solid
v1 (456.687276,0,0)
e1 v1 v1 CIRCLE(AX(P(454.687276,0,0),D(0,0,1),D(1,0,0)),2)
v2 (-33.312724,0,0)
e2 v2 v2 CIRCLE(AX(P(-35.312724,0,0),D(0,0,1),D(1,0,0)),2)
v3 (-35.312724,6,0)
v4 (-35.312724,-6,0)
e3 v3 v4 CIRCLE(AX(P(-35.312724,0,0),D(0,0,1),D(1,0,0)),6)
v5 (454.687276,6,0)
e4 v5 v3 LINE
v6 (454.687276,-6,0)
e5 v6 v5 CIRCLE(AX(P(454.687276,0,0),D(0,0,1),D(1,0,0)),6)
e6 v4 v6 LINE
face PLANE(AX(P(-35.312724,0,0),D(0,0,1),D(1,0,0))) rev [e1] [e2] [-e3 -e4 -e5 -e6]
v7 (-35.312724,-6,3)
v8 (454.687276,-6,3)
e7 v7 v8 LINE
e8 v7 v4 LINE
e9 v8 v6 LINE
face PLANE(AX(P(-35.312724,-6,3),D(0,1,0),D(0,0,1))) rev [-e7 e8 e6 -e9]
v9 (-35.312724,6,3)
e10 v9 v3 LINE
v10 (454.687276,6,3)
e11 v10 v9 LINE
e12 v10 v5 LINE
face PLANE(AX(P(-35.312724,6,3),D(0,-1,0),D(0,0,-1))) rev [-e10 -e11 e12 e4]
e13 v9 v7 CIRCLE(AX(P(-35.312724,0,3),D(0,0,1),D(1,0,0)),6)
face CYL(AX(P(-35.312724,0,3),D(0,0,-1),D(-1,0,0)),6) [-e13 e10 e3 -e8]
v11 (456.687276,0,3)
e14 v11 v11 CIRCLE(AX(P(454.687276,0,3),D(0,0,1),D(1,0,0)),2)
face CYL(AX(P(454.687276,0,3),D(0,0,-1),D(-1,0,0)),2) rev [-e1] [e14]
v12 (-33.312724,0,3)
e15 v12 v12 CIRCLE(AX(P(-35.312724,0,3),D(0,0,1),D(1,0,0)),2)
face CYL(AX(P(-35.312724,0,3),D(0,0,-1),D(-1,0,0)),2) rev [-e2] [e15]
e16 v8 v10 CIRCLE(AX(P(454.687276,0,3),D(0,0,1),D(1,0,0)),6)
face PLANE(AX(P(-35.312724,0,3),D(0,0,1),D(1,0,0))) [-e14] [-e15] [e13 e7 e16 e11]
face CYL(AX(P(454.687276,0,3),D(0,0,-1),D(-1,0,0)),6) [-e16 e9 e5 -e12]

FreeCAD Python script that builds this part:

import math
import FreeCAD as App
import Part
import Sketcher
from FreeCAD import Vector
Q = App.Units.Quantity

doc = App.newDocument("Part")
params = doc.addObject("Spreadsheet::Sheet", "Params")
for row, (alias, value) in enumerate([
    ("sketch1_diameter", "4 mm"),
    ("sketch1_radius", "6 mm"),
    ("sketch1_width", "490 mm"),
    ("pad1_length", "3 mm"),
], start=1):
    params.set(f"A{row}", alias)
    params.set(f"B{row}", "=" + value)
    params.setAlias(f"B{row}", alias)

body = doc.addObject("PartDesign::Body", "Body")

# Sketch on XY plane
sketch1 = doc.addObject("Sketcher::SketchObject", "Sketch")
body.addObject(sketch1)
sketch1.AttachmentSupport = (doc.XY_Plane, [""])
sketch1.MapMode = "FlatFace"
sketch1.addGeometry([
    Part.LineSegment(Vector(454.7, 6, 0), Vector(-35.3, 6, 0)),  # 0
    Part.ArcOfCircle(Part.Circle(Vector(-35.3, 0, 0), Vector(0, 0, 1), 6), math.radians(90), math.radians(270)),  # 1
    Part.LineSegment(Vector(-35.3, -6, 0), Vector(454.7, -6, 0)),  # 2
    Part.ArcOfCircle(Part.Circle(Vector(454.7, 0, 0), Vector(0, 0, 1), 6), math.radians(-90), math.radians(90)),  # 3
    Part.Circle(Vector(454.7, 0, 0), Vector(0, 0, 1), 2),  # 4
    Part.Circle(Vector(-35.3, 0, 0), Vector(0, 0, 1), 2),  # 5
], False)
sketch1.addConstraint([
    Sketcher.Constraint("Tangent", 0, 2, 1, 1),
    Sketcher.Constraint("Tangent", 1, 2, 2, 1),
    Sketcher.Constraint("Tangent", 2, 2, 3, 1),
    Sketcher.Constraint("Tangent", 3, 2, 0, 1),
    Sketcher.Constraint("Horizontal", 0),
    Sketcher.Constraint("Horizontal", 2),
    Sketcher.Constraint("Coincident", 4, 3, 3, 3),
    Sketcher.Constraint("Coincident", 5, 3, 1, 3),
    Sketcher.Constraint("Equal", 4, 5),
    Sketcher.Constraint("PointOnObject", 1, 3, -1),
    Sketcher.Constraint("Diameter", 4, Q("4 mm")),
    Sketcher.Constraint("Radius", 1, Q("6 mm")),
    Sketcher.Constraint("DistanceX", 0, 2, 0, 1, Q("490 mm")),
    Sketcher.Constraint("DistanceX", 1, 3, -1, 1, Q("35.312724 mm")),
])
sketch1.setExpression("Constraints[10]", "Params.sketch1_diameter")
sketch1.setExpression("Constraints[11]", "Params.sketch1_radius")
sketch1.setExpression("Constraints[12]", "Params.sketch1_width")
pad1 = doc.addObject("PartDesign::Pad", "Pad")
body.addObject(pad1)
pad1.Profile = sketch1
pad1.setExpression("Length", "Params.pad1_length")

doc.recompute()
